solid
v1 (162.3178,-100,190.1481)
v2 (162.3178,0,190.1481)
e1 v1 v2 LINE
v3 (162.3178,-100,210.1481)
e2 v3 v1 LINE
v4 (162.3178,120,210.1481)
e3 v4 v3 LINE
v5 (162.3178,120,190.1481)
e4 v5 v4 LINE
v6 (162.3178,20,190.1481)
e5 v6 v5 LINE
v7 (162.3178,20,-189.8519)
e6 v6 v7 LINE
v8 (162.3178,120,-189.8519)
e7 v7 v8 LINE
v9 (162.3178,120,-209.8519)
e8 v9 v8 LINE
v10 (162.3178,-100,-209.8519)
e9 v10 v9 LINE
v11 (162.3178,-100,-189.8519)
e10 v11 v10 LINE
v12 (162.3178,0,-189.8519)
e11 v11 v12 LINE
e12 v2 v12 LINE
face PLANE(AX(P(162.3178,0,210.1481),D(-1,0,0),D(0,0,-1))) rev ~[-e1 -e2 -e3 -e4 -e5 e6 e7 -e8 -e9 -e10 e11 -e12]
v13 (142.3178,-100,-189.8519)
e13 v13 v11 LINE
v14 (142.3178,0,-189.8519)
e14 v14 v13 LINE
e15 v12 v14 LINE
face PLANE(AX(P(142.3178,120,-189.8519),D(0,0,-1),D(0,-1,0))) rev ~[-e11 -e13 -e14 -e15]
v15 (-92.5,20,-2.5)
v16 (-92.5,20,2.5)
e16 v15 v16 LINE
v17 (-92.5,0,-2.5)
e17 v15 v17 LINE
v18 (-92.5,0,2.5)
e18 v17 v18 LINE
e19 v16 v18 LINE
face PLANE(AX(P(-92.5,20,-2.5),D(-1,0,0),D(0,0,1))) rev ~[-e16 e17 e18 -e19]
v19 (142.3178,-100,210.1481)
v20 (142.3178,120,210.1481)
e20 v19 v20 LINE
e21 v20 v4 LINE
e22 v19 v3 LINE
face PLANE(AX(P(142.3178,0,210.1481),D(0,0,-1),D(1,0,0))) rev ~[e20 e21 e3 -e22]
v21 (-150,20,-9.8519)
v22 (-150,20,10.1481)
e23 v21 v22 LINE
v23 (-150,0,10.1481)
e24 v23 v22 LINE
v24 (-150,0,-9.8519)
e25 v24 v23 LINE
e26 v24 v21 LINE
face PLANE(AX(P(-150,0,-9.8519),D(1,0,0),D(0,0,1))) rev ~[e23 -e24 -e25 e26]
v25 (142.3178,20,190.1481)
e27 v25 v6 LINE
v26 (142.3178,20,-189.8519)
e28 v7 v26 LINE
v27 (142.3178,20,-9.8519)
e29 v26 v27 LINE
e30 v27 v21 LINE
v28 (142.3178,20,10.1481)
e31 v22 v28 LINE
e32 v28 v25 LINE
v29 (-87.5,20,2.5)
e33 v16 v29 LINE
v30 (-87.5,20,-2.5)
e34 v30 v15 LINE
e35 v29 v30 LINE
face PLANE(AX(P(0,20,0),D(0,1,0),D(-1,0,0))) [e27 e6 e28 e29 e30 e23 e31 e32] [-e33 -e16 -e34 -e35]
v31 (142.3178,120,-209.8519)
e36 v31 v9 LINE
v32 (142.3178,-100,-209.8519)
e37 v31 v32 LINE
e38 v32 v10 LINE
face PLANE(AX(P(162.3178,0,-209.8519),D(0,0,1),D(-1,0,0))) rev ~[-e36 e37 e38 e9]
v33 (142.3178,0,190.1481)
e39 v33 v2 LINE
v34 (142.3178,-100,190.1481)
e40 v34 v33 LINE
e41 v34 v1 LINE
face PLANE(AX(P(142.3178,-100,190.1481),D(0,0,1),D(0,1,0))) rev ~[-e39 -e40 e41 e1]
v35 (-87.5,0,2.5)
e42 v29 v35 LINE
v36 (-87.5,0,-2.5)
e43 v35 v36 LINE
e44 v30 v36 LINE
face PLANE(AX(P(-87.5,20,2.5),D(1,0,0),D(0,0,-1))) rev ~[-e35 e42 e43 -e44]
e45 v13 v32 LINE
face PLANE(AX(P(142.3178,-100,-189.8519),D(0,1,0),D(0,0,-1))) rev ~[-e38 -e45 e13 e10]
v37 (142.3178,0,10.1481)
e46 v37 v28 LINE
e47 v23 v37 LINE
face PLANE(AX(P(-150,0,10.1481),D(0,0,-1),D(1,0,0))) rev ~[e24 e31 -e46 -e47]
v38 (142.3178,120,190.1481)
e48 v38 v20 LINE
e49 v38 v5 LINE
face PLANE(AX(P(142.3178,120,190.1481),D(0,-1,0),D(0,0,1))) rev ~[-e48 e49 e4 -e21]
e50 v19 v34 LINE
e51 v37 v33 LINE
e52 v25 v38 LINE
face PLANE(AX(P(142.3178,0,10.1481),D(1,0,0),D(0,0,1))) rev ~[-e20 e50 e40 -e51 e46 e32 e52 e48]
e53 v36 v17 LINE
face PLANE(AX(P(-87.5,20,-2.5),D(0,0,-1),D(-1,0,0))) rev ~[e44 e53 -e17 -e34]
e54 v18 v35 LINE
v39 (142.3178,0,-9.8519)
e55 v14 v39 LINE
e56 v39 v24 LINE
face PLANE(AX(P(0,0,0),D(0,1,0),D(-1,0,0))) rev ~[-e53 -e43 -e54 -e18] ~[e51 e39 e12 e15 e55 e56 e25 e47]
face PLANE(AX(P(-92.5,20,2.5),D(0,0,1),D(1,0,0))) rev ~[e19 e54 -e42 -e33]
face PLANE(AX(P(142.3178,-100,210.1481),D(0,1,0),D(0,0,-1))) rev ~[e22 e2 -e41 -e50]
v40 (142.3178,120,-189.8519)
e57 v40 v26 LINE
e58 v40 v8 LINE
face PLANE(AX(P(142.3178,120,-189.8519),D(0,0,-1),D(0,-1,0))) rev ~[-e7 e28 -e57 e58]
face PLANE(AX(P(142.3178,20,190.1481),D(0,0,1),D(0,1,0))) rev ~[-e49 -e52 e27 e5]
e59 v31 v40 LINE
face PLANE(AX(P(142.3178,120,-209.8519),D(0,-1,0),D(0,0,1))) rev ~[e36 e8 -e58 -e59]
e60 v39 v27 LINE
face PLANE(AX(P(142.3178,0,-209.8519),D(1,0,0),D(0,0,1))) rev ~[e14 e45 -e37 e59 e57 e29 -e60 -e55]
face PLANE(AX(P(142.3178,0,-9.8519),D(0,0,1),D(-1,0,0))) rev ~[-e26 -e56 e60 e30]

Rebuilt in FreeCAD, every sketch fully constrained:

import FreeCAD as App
import Part
import Sketcher


def add_polygon(sketch, points):
    """Adds a closed chain of lines whose ends are joined by coincident constraints."""
    first, n = sketch.GeometryCount, len(points)
    for a, b in zip(points, points[1:] + points[:1]):
        sketch.addGeometry(Part.LineSegment(App.Vector(*a, 0), App.Vector(*b, 0)), False)
    for i in range(n):
        sketch.addConstraint(Sketcher.Constraint("Coincident", first + i, 2, first + (i + 1) % n, 1))

doc = App.newDocument("Part")
body = doc.addObject("PartDesign::Body", "Body")

sketch1 = body.newObject("Sketcher::SketchObject", "Sketch")
sketch1.AttachmentSupport = (doc.getObject("XZ_Plane"), [""])
sketch1.MapMode = "FlatFace"
add_polygon(sketch1, [(-150, -9.8519), (-150, 10.1481), (142.3178, 10.1481), (142.3178, 210.1481), (162.3178, 210.1481), (162.3178, -209.8519), (142.3178, -209.8519), (142.3178, -9.8519)])
sketch1.addConstraint([
    Sketcher.Constraint("Vertical", 0),
    Sketcher.Constraint("Horizontal", 1),
    Sketcher.Constraint("Vertical", 2),
    Sketcher.Constraint("Horizontal", 3),
    Sketcher.Constraint("Vertical", 4),
    Sketcher.Constraint("Horizontal", 5),
    Sketcher.Constraint("Vertical", 6),
    Sketcher.Constraint("Horizontal", 7),
    Sketcher.Constraint("Vertical", 2, 2, 5, 2),
    Sketcher.Constraint("Equal", 5, 0),
    Sketcher.Constraint("Equal", 2, 6),
    Sketcher.Constraint("DistanceX", 3, 1, 3, 2, 20.0),
    Sketcher.Constraint("DistanceY", 2, 1, 2, 2, 200.0),
    Sketcher.Constraint("DistanceX", 0, 2, -1, 1, 150.0),
    Sketcher.Constraint("DistanceX", 1, 1, 1, 2, 292.3178),
    Sketcher.Constraint("DistanceY", -1, 1, 0, 2, 10.148),
])
pad1 = body.newObject("PartDesign::Pad", "Pad")
pad1.Profile = sketch1
pad1.Length = 20
pad1.Reversed = True

sketch2 = body.newObject("Sketcher::SketchObject", "Sketch001")
sketch2.AttachmentSupport = (doc.getObject("YZ_Plane"), [""])
sketch2.MapMode = "FlatFace"
sketch2.AttachmentOffset = App.Placement(App.Vector(0, 0, 142.3178), App.Rotation())
add_polygon(sketch2, [(120, -189.8519), (120, -209.8519), (-100, -209.8519), (-100, -189.8519)])
add_polygon(sketch2, [(-100, 190.1481), (-100, 210.1481), (0, 210.1481), (0, 190.1481)])
add_polygon(sketch2, [(20, 190.1481), (20, 210.1481), (120, 210.1481), (120, 190.1481)])
sketch2.addConstraint([
    Sketcher.Constraint("Vertical", 0),
    Sketcher.Constraint("Horizontal", 1),
    Sketcher.Constraint("Vertical", 2),
    Sketcher.Constraint("Horizontal", 3),
    Sketcher.Constraint("Vertical", 4),
    Sketcher.Constraint("Horizontal", 5),
    Sketcher.Constraint("Vertical", 6),
    Sketcher.Constraint("Horizontal", 7),
    Sketcher.Constraint("Vertical", 8),
    Sketcher.Constraint("Horizontal", 9),
    Sketcher.Constraint("Vertical", 10),
    Sketcher.Constraint("Horizontal", 11),
    Sketcher.Constraint("PointOnObject", 5, 2, -2),
    Sketcher.Constraint("Horizontal", 5, 2, 8, 2),
    Sketcher.Constraint("Horizontal", 7, 2, 10, 2),
    Sketcher.Constraint("Vertical", 2, 2, 4, 2),
    Sketcher.Constraint("Vertical", 3, 2, 9, 2),
    Sketcher.Constraint("Equal", 7, 9),
    Sketcher.Constraint("Equal", 2, 4),
    Sketcher.Constraint("DistanceX", 5, 1, 5, 2, 100.0),
    Sketcher.Constraint("DistanceY", 0, 2, 0, 1, 20.0),
    Sketcher.Constraint("DistanceX", -1, 1, 8, 2, 20.0),
    Sketcher.Constraint("DistanceY", 2, 2, 4, 2, 400.0),
    Sketcher.Constraint("DistanceY", 0, 2, -1, 1, 209.852),
])
pad2 = body.newObject("PartDesign::Pad", "Pad001")
pad2.Profile = sketch2
pad2.Length = 20

sketch3 = body.newObject("Sketcher::SketchObject", "Sketch002")
sketch3.AttachmentSupport = (doc.getObject("XZ_Plane"), [""])
sketch3.MapMode = "FlatFace"
sketch3.AttachmentOffset = App.Placement(App.Vector(0, 0, -20), App.Rotation())
add_polygon(sketch3, [(-92.5, -2.5), (-92.5, 2.5), (-87.5, 2.5), (-87.5, -2.5)])
sketch3.addConstraint([
    Sketcher.Constraint("Vertical", 0),
    Sketcher.Constraint("Horizontal", 1),
    Sketcher.Constraint("Vertical", 2),
    Sketcher.Constraint("Horizontal", 3),
    Sketcher.Constraint("Equal", 3, 0),
    Sketcher.Constraint("DistanceX", 1, 1, 1, 2, 5.0),
    Sketcher.Constraint("DistanceY", -1, 1, 0, 2, 2.5),
    Sketcher.Constraint("DistanceX", 0, 2, -1, 1, 92.5),
])
pocket1 = body.newObject("PartDesign::Pocket", "Pocket")
pocket1.Profile = sketch3
pocket1.Type = "ThroughAll"
pocket1.Reversed = True

doc.recompute()
